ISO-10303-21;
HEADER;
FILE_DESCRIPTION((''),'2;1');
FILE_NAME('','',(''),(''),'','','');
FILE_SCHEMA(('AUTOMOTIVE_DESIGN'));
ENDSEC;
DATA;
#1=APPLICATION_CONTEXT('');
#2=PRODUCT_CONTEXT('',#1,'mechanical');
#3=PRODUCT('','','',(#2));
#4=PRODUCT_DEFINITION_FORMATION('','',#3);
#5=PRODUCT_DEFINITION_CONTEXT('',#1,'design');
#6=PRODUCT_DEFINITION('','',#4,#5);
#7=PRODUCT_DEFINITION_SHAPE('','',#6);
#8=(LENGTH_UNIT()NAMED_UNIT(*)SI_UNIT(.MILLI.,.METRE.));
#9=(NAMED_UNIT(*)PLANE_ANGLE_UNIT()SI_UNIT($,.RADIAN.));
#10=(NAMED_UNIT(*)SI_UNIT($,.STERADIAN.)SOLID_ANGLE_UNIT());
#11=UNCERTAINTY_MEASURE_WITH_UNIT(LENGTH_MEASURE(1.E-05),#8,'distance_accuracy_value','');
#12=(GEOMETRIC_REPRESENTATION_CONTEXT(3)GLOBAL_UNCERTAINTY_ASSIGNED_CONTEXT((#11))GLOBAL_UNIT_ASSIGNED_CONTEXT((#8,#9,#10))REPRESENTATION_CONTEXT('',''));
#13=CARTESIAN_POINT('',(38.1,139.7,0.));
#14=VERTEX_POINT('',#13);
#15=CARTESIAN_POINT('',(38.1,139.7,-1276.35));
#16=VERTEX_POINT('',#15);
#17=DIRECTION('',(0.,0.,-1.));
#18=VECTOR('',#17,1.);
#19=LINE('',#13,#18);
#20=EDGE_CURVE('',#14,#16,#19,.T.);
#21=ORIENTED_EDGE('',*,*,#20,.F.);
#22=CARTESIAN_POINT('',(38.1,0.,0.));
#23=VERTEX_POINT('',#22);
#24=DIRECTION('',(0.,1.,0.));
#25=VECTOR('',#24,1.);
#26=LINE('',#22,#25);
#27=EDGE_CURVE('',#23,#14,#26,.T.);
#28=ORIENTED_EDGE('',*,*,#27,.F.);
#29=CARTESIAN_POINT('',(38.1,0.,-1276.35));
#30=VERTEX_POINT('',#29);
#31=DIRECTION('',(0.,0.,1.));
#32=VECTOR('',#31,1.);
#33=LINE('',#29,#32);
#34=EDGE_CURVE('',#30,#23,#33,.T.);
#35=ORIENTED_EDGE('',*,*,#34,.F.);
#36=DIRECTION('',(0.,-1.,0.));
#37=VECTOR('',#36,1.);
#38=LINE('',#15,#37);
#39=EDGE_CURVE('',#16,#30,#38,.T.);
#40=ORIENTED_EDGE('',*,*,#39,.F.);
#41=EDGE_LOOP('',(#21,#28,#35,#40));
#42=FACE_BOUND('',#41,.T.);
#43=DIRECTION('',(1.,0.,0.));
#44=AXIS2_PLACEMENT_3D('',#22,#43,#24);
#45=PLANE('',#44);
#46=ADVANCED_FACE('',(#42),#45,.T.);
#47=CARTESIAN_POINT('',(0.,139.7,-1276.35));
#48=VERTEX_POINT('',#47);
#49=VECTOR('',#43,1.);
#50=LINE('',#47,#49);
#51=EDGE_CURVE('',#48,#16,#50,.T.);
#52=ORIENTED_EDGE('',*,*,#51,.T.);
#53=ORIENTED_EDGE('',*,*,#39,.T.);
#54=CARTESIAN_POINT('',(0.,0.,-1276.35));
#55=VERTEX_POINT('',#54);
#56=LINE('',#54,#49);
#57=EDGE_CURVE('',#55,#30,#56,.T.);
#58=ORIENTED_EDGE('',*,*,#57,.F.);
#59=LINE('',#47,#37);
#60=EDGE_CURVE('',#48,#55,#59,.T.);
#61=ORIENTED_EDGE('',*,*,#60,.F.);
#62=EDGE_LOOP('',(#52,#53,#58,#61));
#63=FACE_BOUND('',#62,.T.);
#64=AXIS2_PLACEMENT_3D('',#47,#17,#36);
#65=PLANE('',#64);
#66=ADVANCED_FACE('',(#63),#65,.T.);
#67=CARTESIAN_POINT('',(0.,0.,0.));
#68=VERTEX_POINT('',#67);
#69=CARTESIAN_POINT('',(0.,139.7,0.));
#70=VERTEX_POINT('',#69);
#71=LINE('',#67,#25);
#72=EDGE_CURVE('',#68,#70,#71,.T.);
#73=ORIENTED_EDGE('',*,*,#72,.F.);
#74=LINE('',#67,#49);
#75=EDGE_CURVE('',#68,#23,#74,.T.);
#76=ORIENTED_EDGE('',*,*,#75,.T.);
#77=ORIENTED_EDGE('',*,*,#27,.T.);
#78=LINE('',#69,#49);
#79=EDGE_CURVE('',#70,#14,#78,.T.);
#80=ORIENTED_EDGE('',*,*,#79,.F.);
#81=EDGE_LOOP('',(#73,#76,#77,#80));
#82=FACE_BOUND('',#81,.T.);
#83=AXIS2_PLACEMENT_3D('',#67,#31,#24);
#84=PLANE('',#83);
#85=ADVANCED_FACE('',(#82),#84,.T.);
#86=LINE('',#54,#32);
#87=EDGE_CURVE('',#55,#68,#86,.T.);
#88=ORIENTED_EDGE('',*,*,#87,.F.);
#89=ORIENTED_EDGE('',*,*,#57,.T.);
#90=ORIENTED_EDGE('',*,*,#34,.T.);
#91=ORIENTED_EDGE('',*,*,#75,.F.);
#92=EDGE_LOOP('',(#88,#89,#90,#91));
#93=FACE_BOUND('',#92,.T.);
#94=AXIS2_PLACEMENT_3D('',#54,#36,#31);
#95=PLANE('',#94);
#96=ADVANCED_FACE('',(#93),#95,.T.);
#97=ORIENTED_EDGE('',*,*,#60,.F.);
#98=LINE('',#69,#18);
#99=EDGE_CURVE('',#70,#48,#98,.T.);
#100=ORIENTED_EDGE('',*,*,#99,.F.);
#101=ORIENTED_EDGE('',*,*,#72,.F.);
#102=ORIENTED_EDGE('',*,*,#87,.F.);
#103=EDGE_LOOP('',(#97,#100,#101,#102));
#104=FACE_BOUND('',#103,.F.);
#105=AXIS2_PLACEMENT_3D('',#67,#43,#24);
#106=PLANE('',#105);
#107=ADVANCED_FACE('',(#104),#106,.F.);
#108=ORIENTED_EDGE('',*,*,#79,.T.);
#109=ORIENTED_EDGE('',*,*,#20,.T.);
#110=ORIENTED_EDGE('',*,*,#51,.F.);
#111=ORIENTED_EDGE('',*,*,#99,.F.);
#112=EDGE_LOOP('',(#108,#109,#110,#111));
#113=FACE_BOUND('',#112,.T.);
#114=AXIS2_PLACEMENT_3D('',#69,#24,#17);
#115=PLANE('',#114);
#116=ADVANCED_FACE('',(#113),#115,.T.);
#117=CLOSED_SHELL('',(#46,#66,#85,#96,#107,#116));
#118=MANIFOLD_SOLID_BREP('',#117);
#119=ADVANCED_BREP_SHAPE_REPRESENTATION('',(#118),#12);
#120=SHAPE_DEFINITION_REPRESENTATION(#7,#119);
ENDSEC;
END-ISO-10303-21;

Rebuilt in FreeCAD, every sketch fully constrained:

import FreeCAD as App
import Part
import Sketcher

V = App.Vector
Q = App.Units.Quantity

doc = App.newDocument("Part")
body = doc.addObject("PartDesign::Body", "Body")

# Sketch on YZ plane
sketch1 = body.newObject("Sketcher::SketchObject", "Sketch")
sketch1.AttachmentSupport = (doc.getObject("YZ_Plane"), [""])
sketch1.MapMode = "FlatFace"
sketch1.addGeometry([
    Part.LineSegment(V(140, 0, 0), V(0, 0, 0)),
    Part.LineSegment(V(0, 0, 0), V(0, -1276, 0)),
    Part.LineSegment(V(0, -1276, 0), V(140, -1276, 0)),
    Part.LineSegment(V(140, -1276, 0), V(140, 0, 0)),
], False)
sketch1.addConstraint([
    Sketcher.Constraint("Coincident", 0, 2, 1, 1),
    Sketcher.Constraint("Coincident", 1, 2, 2, 1),
    Sketcher.Constraint("Coincident", 2, 2, 3, 1),
    Sketcher.Constraint("Coincident", 3, 2, 0, 1),
    Sketcher.Constraint("Horizontal", 0),
    Sketcher.Constraint("Vertical", 1),
    Sketcher.Constraint("Horizontal", 2),
    Sketcher.Constraint("Vertical", 3),
    Sketcher.Constraint("Coincident", 0, 2, -1, 1),
    Sketcher.Constraint("DistanceX", 0, 2, 0, 1, Q("5.5 in")),
    Sketcher.Constraint("DistanceY", 1, 2, 1, 1, Q("50.25 in")),
])
pad1 = body.newObject("PartDesign::Pad", "Pad")
pad1.Profile = sketch1
pad1.Length = Q("1.5 in")

doc.recompute()
